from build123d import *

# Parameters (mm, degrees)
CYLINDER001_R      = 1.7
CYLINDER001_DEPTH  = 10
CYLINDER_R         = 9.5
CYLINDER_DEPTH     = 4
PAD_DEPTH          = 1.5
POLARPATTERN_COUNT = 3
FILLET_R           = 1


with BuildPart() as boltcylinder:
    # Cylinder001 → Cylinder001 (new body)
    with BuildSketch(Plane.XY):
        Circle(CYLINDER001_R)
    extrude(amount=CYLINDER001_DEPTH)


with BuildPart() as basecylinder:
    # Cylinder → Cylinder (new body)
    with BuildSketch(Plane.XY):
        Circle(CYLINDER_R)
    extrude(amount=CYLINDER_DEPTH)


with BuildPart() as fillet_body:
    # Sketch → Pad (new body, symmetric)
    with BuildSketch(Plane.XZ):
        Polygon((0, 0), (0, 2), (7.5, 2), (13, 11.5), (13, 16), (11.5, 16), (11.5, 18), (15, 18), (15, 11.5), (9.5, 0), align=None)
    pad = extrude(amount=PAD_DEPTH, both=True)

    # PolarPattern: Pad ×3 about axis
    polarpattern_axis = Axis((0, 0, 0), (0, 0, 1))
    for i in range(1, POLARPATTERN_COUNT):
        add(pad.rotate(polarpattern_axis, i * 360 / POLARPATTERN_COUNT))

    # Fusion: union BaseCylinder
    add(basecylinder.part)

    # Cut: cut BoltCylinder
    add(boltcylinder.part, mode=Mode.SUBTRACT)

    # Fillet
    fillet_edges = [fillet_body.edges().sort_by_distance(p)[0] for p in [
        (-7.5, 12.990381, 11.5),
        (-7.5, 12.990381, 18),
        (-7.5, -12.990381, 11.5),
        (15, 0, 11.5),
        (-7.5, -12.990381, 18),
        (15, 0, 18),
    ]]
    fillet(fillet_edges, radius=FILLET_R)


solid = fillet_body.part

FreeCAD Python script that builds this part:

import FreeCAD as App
import Part
import Sketcher
Q = App.Units.Quantity


def edges_at(feature, points):
    """Names of the edges that pass closest to the given points."""
    edges = feature.Shape.Edges
    near = lambda p: min(range(len(edges)), key=lambda i: edges[i].distToShape(Part.Vertex(*p))[0])
    return sorted({f"Edge{near(p) + 1}" for p in points})


def add_polygon(sketch, points):
    """Adds a closed chain of lines whose ends are joined by coincident constraints."""
    first, n = sketch.GeometryCount, len(points)
    for a, b in zip(points, points[1:] + points[:1]):
        sketch.addGeometry(Part.LineSegment(App.Vector(*a, 0), App.Vector(*b, 0)), False)
    for i in range(n):
        sketch.addConstraint(Sketcher.Constraint("Coincident", first + i, 2, first + (i + 1) % n, 1))

doc = App.newDocument("Part")
body = doc.addObject("PartDesign::Body", "Body")

sketch1 = body.newObject("Sketcher::SketchObject", "Sketch")
sketch1.AttachmentSupport = (doc.getObject("XY_Plane"), [""])
sketch1.MapMode = "FlatFace"
sketch1.addGeometry(Part.Circle(App.Vector(0, 0, 0), App.Vector(0, 0, 1), 1.7), False)
sketch1.addConstraint(Sketcher.Constraint("Coincident", 0, 3, -1, 1))
sketch1.addConstraint(Sketcher.Constraint("Diameter", 0, Q("3.4 mm")))
pad1 = body.newObject("PartDesign::Pad", "Pad")
pad1.Profile = sketch1
pad1.Length = 10
body2 = doc.addObject("PartDesign::Body", "Body001")

sketch2 = body2.newObject("Sketcher::SketchObject", "Sketch001")
sketch2.AttachmentSupport = (doc.getObject("XY_Plane001"), [""])
sketch2.MapMode = "FlatFace"
sketch2.addGeometry(Part.Circle(App.Vector(0, 0, 0), App.Vector(0, 0, 1), 9.5), False)
sketch2.addConstraint(Sketcher.Constraint("Coincident", 0, 3, -1, 1))
sketch2.addConstraint(Sketcher.Constraint("Diameter", 0, Q("19 mm")))
pad2 = body2.newObject("PartDesign::Pad", "Pad001")
pad2.Profile = sketch2
pad2.Length = 4
body3 = doc.addObject("PartDesign::Body", "Body002")

sketch3 = body3.newObject("Sketcher::SketchObject", "Sketch002")
sketch3.AttachmentSupport = (doc.getObject("XZ_Plane002"), [""])
sketch3.MapMode = "FlatFace"
add_polygon(sketch3, [(0, 2), (0, 0), (9.5, 0), (15, 11.5), (15, 18), (11.5, 18), (11.5, 16), (13, 16), (13, 11.5), (7.5, 2)])
sketch3.addConstraint(Sketcher.Constraint("Vertical", 0))
sketch3.addConstraint(Sketcher.Constraint("Horizontal", 1))
sketch3.addConstraint(Sketcher.Constraint("Vertical", 3))
sketch3.addConstraint(Sketcher.Constraint("Horizontal", 4))
sketch3.addConstraint(Sketcher.Constraint("Vertical", 5))
sketch3.addConstraint(Sketcher.Constraint("Horizontal", 6))
sketch3.addConstraint(Sketcher.Constraint("Vertical", 7))
sketch3.addConstraint(Sketcher.Constraint("Horizontal", 9))
sketch3.addConstraint(Sketcher.Constraint("Coincident", 0, 2, -1, 1))
sketch3.addConstraint(Sketcher.Constraint("Horizontal", 2, 2, 7, 2))
sketch3.addConstraint(Sketcher.Constraint("Equal", 0, 5))
sketch3.addConstraint(Sketcher.Constraint("DistanceY", 0, 2, 0, 1, Q("2 mm")))
sketch3.addConstraint(Sketcher.Constraint("DistanceX", 1, 1, 1, 2, Q("9.5 mm")))
sketch3.addConstraint(Sketcher.Constraint("DistanceX", 4, 2, 4, 1, Q("3.5 mm")))
sketch3.addConstraint(Sketcher.Constraint("DistanceX", 6, 1, 6, 2, Q("1.5 mm")))
sketch3.addConstraint(Sketcher.Constraint("DistanceX", 9, 2, 9, 1, Q("7.5 mm")))
sketch3.addConstraint(Sketcher.Constraint("DistanceY", 3, 1, 3, 2, Q("6.5 mm")))
sketch3.addConstraint(Sketcher.Constraint("DistanceX", -1, 1, 2, 2, Q("15 mm")))
sketch3.addConstraint(Sketcher.Constraint("DistanceY", -1, 1, 3, 2, Q("18 mm")))
pad3 = body3.newObject("PartDesign::Pad", "Pad002")
pad3.Profile = sketch3
pad3.Length = 3
pad3.Midplane = True
doc.recompute()

polarpattern = body3.newObject("PartDesign::PolarPattern", "PolarPattern")
polarpattern.Originals = [pad3]
polarpattern.Axis = (doc.getObject("Z_Axis002"), [""])
polarpattern.Angle = 360
polarpattern.Occurrences = 3
body3.Tip = polarpattern
doc.recompute()

boolean = body3.newObject("PartDesign::Boolean", "Boolean")
boolean.Type = "Fuse"
boolean.addObjects([body2])
doc.recompute()

boolean2 = body3.newObject("PartDesign::Boolean", "Boolean001")
boolean2.Type = "Cut"
boolean2.addObjects([body])
doc.recompute()

fillet = body3.newObject("PartDesign::Fillet", "Fillet")
fillet.Base = (boolean2, edges_at(boolean2, [
    (-7.5, 12.99, 11.5),
    (-7.5, 12.99, 18),
    (-7.5, -12.99, 11.5),
    (15, 0, 11.5),
    (-7.5, -12.99, 18),
    (15, 0, 18),
]))
fillet.Radius = 1

doc.recompute()
